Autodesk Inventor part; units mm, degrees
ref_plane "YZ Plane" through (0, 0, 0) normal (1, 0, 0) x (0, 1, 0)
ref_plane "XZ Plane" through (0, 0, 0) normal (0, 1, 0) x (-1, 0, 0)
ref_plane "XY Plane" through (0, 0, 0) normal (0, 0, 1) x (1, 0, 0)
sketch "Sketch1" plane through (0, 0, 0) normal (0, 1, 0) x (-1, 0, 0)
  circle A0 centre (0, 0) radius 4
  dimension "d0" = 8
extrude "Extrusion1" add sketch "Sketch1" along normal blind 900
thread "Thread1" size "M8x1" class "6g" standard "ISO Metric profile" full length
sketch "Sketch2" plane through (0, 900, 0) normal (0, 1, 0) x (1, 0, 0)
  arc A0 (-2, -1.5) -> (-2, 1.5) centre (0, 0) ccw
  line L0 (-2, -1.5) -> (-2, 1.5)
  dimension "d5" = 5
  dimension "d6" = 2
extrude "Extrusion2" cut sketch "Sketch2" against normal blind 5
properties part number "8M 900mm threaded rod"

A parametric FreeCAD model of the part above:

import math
import FreeCAD as App
import Part
import Sketcher
Q = App.Units.Quantity

doc = App.newDocument("Part")
body = doc.addObject("PartDesign::Body", "Body")

# Sketch on XZ plane
sketch1 = body.newObject("Sketcher::SketchObject", "Sketch")
sketch1.AttachmentSupport = (doc.getObject("XZ_Plane"), [""])
sketch1.MapMode = "FlatFace"
sketch1.addGeometry(Part.Circle(App.Vector(0, 0, 0), App.Vector(0, 0, 1), 4), False)
sketch1.addConstraint(Sketcher.Constraint("Coincident", 0, 3, -1, 1))
sketch1.addConstraint(Sketcher.Constraint("Diameter", 0, Q("8 mm")))
pad1 = body.newObject("PartDesign::Pad", "Pad")
pad1.Profile = sketch1
pad1.Length = 900
pad1.Reversed = True

# Sketch on XZ plane
sketch2 = body.newObject("Sketcher::SketchObject", "Sketch001")
sketch2.AttachmentSupport = (doc.getObject("XZ_Plane"), [""])
sketch2.MapMode = "FlatFace"
sketch2.AttachmentOffset = App.Placement(App.Vector(0, 0, -900), App.Rotation())
sketch2.addGeometry(Part.LineSegment(App.Vector(-2, -1.5, 0), App.Vector(-2, 1.5, 0)), False)
sketch2.addGeometry(Part.ArcOfCircle(Part.Circle(App.Vector(0, 0, 0), App.Vector(0, 0, 1), 2.5), math.radians(-143), math.radians(143)), False)
sketch2.addConstraint(Sketcher.Constraint("Coincident", 0, 1, 1, 1))
sketch2.addConstraint(Sketcher.Constraint("Coincident", 1, 2, 0, 2))
sketch2.addConstraint(Sketcher.Constraint("Vertical", 0))
sketch2.addConstraint(Sketcher.Constraint("Coincident", 1, 3, -1, 1))
sketch2.addConstraint(Sketcher.Constraint("Radius", 1, Q("2.5 mm")))
sketch2.addConstraint(Sketcher.Constraint("DistanceX", 0, 1, -1, 1, Q("2 mm")))
pocket1 = body.newObject("PartDesign::Pocket", "Pocket")
pocket1.Profile = sketch2
pocket1.Length = 5
pocket1.Reversed = True

doc.recompute()
